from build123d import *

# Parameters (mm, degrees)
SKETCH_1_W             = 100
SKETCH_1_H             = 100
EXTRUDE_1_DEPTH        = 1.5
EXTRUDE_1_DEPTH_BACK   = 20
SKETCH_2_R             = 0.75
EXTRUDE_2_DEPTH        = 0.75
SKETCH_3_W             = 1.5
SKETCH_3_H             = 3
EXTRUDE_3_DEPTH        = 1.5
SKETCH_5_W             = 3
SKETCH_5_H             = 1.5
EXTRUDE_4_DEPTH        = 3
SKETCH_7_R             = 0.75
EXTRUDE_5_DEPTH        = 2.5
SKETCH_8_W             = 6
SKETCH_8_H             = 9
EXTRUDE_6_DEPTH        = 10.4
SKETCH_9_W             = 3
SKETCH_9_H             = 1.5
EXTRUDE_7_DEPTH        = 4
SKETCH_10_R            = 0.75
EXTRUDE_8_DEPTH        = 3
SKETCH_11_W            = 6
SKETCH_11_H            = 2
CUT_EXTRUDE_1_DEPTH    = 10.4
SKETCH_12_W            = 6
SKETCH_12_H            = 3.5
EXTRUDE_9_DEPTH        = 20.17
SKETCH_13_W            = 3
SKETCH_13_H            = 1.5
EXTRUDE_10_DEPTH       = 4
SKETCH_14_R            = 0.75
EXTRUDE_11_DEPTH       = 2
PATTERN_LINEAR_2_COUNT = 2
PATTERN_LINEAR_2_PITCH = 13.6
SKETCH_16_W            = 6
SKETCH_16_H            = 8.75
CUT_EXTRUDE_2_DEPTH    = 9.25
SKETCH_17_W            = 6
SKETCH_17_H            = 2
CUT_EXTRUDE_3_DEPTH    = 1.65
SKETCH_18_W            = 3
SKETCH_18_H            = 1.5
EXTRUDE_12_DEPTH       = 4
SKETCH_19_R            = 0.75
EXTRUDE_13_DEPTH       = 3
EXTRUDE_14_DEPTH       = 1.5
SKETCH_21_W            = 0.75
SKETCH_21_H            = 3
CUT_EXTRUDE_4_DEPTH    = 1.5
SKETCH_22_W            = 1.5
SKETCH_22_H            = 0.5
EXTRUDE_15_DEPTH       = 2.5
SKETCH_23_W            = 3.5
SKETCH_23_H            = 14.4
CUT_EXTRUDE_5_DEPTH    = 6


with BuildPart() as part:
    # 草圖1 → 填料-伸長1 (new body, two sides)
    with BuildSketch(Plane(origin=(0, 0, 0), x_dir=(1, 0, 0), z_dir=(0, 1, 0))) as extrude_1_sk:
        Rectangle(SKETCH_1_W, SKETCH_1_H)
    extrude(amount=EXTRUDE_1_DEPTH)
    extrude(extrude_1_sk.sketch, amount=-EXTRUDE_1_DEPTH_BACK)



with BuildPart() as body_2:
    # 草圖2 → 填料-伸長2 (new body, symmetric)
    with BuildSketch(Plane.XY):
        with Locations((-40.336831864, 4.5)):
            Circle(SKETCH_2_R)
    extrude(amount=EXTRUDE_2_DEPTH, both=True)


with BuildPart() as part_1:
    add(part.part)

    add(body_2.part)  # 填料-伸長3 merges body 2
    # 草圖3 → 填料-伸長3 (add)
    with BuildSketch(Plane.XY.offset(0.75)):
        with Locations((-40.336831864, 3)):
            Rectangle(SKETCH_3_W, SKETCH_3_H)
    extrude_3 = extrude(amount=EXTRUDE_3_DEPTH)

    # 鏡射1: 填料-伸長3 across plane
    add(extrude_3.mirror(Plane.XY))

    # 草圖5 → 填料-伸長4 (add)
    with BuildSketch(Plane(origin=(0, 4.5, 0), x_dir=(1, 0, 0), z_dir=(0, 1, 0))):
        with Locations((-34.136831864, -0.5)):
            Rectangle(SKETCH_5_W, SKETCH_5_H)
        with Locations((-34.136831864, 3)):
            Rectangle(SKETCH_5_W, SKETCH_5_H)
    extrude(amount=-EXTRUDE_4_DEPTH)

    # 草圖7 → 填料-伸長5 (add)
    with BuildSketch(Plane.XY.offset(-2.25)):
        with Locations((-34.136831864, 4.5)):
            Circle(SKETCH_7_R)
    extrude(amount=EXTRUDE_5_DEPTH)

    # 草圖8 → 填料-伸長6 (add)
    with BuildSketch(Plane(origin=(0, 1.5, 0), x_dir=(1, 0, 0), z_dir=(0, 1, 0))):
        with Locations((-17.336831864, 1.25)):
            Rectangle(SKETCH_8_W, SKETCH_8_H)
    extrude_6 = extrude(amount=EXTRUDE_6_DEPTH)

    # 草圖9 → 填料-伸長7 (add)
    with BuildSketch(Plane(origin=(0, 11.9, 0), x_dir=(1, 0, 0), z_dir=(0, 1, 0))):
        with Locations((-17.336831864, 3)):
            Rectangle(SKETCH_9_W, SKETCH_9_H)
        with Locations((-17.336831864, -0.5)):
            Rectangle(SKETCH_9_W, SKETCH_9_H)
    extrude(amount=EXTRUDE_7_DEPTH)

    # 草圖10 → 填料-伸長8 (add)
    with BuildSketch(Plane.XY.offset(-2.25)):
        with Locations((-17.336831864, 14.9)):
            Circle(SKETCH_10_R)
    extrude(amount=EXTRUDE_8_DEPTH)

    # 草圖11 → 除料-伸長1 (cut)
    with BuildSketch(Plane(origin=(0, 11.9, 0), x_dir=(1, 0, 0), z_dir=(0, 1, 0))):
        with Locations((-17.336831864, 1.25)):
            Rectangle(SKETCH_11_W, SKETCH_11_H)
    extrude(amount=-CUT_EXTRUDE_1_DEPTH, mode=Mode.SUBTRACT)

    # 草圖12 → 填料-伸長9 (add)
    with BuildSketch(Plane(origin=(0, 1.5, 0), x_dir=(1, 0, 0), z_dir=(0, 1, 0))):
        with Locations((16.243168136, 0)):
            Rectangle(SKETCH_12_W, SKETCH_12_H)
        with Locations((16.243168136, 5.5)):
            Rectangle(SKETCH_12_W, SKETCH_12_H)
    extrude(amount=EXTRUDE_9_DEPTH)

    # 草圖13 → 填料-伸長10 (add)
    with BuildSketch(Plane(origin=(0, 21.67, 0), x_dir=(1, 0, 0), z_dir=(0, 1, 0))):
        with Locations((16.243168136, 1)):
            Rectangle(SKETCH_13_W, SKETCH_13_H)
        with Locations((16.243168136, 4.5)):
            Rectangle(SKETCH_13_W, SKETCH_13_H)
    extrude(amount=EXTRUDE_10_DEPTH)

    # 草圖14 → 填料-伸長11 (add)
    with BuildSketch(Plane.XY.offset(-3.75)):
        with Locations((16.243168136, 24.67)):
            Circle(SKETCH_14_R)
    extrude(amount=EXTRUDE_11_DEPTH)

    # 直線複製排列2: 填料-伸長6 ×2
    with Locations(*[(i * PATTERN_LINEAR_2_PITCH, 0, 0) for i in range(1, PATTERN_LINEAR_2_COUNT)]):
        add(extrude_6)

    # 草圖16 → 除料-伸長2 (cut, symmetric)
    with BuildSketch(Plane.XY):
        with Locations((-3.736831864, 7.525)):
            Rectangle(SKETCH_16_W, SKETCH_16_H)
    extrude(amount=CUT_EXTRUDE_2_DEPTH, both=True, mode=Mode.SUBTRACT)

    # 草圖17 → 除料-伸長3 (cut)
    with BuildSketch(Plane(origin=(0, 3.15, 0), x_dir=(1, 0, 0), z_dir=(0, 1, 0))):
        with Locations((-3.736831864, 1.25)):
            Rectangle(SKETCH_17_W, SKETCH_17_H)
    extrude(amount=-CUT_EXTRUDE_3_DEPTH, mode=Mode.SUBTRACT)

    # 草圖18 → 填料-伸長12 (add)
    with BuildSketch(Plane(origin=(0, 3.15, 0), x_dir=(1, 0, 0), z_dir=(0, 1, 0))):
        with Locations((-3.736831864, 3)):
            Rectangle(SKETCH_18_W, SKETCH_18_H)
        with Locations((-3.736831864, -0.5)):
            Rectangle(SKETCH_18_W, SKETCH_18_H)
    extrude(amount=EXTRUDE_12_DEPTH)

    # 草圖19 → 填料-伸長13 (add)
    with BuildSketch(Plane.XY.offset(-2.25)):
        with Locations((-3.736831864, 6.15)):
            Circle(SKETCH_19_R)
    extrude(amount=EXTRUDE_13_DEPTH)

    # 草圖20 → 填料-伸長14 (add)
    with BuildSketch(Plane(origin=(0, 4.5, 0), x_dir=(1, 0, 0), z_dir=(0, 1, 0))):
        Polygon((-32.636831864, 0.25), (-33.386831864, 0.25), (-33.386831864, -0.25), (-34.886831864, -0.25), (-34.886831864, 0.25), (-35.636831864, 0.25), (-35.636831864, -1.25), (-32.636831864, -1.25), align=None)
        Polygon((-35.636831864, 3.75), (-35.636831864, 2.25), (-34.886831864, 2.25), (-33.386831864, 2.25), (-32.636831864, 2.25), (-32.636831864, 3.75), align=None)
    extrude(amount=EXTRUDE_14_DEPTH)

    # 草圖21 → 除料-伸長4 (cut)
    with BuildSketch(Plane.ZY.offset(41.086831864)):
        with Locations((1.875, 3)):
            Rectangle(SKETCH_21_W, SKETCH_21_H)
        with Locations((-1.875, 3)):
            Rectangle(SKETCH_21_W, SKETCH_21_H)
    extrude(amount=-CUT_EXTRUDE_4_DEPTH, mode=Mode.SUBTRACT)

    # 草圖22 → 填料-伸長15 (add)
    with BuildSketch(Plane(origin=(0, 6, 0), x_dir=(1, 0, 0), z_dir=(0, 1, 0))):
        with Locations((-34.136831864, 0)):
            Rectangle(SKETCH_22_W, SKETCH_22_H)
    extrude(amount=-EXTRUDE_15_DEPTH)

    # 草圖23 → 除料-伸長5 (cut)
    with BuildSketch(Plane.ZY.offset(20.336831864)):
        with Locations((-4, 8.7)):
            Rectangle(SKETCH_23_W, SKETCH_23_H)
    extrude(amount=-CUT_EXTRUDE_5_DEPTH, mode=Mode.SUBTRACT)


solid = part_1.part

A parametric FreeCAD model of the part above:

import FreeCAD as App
import Part
import Sketcher
from FreeCAD import Vector
Q = App.Units.Quantity


def add_polygon(sketch, points):
    """Adds a closed chain of lines whose ends are joined by coincident constraints."""
    first, n = sketch.GeometryCount, len(points)
    for a, b in zip(points, points[1:] + points[:1]):
        sketch.addGeometry(Part.LineSegment(App.Vector(*a, 0), App.Vector(*b, 0)), False)
    for i in range(n):
        sketch.addConstraint(Sketcher.Constraint("Coincident", first + i, 2, first + (i + 1) % n, 1))

doc = App.newDocument("Part")
body = doc.addObject("PartDesign::Body", "Body")

# Sketch on XZ plane
sketch1 = body.newObject("Sketcher::SketchObject", "Sketch")
sketch1.AttachmentSupport = (doc.getObject("XZ_Plane"), [""])
sketch1.MapMode = "FlatFace"
add_polygon(sketch1, [(-50, -50), (-50, 50), (50, 50), (50, -50)])  # lines 0-3
sketch1.addConstraint(Sketcher.Constraint("Vertical", 0))
sketch1.addConstraint(Sketcher.Constraint("Horizontal", 1))
sketch1.addConstraint(Sketcher.Constraint("Vertical", 2))
sketch1.addConstraint(Sketcher.Constraint("Horizontal", 3))
sketch1.addConstraint(Sketcher.Constraint("Symmetric", 0, 2, 2, 2, -1, 1))
sketch1.addConstraint(Sketcher.Constraint("Equal", 3, 0))
sketch1.addConstraint(Sketcher.Constraint("DistanceX", 1, 1, 1, 2, Q("100 mm")))
pad1 = body.newObject("PartDesign::Pad", "Pad")
pad1.Profile = sketch1
pad1.Type = "TwoLengths"
pad1.Length = 1.5
pad1.Length2 = 20
pad1.Reversed = True
body2 = doc.addObject("PartDesign::Body", "Body001")

# Sketch on XY plane
sketch2 = body2.newObject("Sketcher::SketchObject", "Sketch001")
sketch2.AttachmentSupport = (doc.getObject("XY_Plane001"), [""])
sketch2.MapMode = "FlatFace"
sketch2.addGeometry(Part.Circle(Vector(-40.3, 4.5, 0), Vector(0, 0, 1), 0.8), False)
sketch2.addConstraint(Sketcher.Constraint("Diameter", 0, Q("1.5 mm")))
sketch2.addConstraint(Sketcher.Constraint("DistanceY", -1, 1, 0, 3, Q("4.5 mm")))
sketch2.addConstraint(Sketcher.Constraint("DistanceX", 0, 3, -1, 1, Q("40.336832 mm")))
pad2 = body2.newObject("PartDesign::Pad", "Pad001")
pad2.Profile = sketch2
pad2.Length = 1.5
pad2.Midplane = True
body.AllowCompound = True
doc.recompute()

boolean = body.newObject("PartDesign::Boolean", "Boolean")
boolean.Type = "Fuse"
boolean.addObjects([body2])

# Sketch on XY plane
sketch3 = body.newObject("Sketcher::SketchObject", "Sketch002")
sketch3.AttachmentSupport = (doc.getObject("XY_Plane"), [""])
sketch3.MapMode = "FlatFace"
sketch3.AttachmentOffset = App.Placement(Vector(0, 0, 0.75), App.Rotation())
add_polygon(sketch3, [(-41.1, 4.5), (-41.1, 1.5), (-39.6, 1.5), (-39.6, 4.5)])  # lines 0-3
sketch3.addConstraint(Sketcher.Constraint("Vertical", 0))
sketch3.addConstraint(Sketcher.Constraint("Horizontal", 1))
sketch3.addConstraint(Sketcher.Constraint("Vertical", 2))
sketch3.addConstraint(Sketcher.Constraint("Horizontal", 3))
sketch3.addConstraint(Sketcher.Constraint("DistanceY", 0, 2, 0, 1, Q("3 mm")))
sketch3.addConstraint(Sketcher.Constraint("DistanceX", 1, 1, 1, 2, Q("1.5 mm")))
sketch3.addConstraint(Sketcher.Constraint("DistanceY", -1, 1, 0, 2, Q("1.5 mm")))
sketch3.addConstraint(Sketcher.Constraint("DistanceX", 0, 2, -1, 1, Q("41.086832 mm")))
pad3 = body.newObject("PartDesign::Pad", "Pad002")
pad3.Profile = sketch3
pad3.Length = 1.5
doc.recompute()

mirrored = body.newObject("PartDesign::Mirrored", "Mirrored")
mirrored.Originals = [pad3]
mirrored.MirrorPlane = (doc.getObject("XY_Plane"), [""])
body.Tip = mirrored

# Sketch on XZ plane
sketch4 = body.newObject("Sketcher::SketchObject", "Sketch003")
sketch4.AttachmentSupport = (doc.getObject("XZ_Plane"), [""])
sketch4.MapMode = "FlatFace"
sketch4.AttachmentOffset = App.Placement(Vector(0, 0, -4.5), App.Rotation())
add_polygon(sketch4, [(-35.6, -0.2), (-35.6, 1.2), (-32.6, 1.2), (-32.6, -0.2)])  # lines 0-3
add_polygon(sketch4, [(-35.6, -3.8), (-35.6, -2.2), (-32.6, -2.2), (-32.6, -3.8)])  # lines 4-7
sketch4.addConstraint(Sketcher.Constraint("Vertical", 0))
sketch4.addConstraint(Sketcher.Constraint("Horizontal", 1))
sketch4.addConstraint(Sketcher.Constraint("Vertical", 2))
sketch4.addConstraint(Sketcher.Constraint("Horizontal", 3))
sketch4.addConstraint(Sketcher.Constraint("Vertical", 4))
sketch4.addConstraint(Sketcher.Constraint("Horizontal", 5))
sketch4.addConstraint(Sketcher.Constraint("Vertical", 6))
sketch4.addConstraint(Sketcher.Constraint("Horizontal", 7))
sketch4.addConstraint(Sketcher.Constraint("Vertical", 3, 2, 4, 2))
sketch4.addConstraint(Sketcher.Constraint("Vertical", 2, 2, 5, 2))
sketch4.addConstraint(Sketcher.Constraint("Equal", 2, 4))
sketch4.addConstraint(Sketcher.Constraint("DistanceX", 1, 1, 1, 2, Q("3 mm")))
sketch4.addConstraint(Sketcher.Constraint("DistanceY", 0, 1, 0, 2, Q("1.5 mm")))
sketch4.addConstraint(Sketcher.Constraint("DistanceY", 4, 2, 3, 2, Q("2 mm")))
sketch4.addConstraint(Sketcher.Constraint("DistanceY", -1, 1, 0, 2, Q("1.25 mm")))
sketch4.addConstraint(Sketcher.Constraint("DistanceX", 0, 2, -1, 1, Q("35.636832 mm")))
pad4 = body.newObject("PartDesign::Pad", "Pad003")
pad4.Profile = sketch4
pad4.Length = 3

# Sketch on XY plane
sketch5 = body.newObject("Sketcher::SketchObject", "Sketch004")
sketch5.AttachmentSupport = (doc.getObject("XY_Plane"), [""])
sketch5.MapMode = "FlatFace"
sketch5.AttachmentOffset = App.Placement(Vector(0, 0, -2.25), App.Rotation())
sketch5.addGeometry(Part.Circle(Vector(-34.1, 4.5, 0), Vector(0, 0, 1), 0.8), False)
sketch5.addConstraint(Sketcher.Constraint("Diameter", 0, Q("1.5 mm")))
sketch5.addConstraint(Sketcher.Constraint("DistanceY", -1, 1, 0, 3, Q("4.5 mm")))
sketch5.addConstraint(Sketcher.Constraint("DistanceX", 0, 3, -1, 1, Q("34.136832 mm")))
pad5 = body.newObject("PartDesign::Pad", "Pad004")
pad5.Profile = sketch5
pad5.Length = 2.5

# Sketch on XZ plane
sketch6 = body.newObject("Sketcher::SketchObject", "Sketch005")
sketch6.AttachmentSupport = (doc.getObject("XZ_Plane"), [""])
sketch6.MapMode = "FlatFace"
sketch6.AttachmentOffset = App.Placement(Vector(0, 0, -1.5), App.Rotation())
add_polygon(sketch6, [(-20, -6), (-20, 3), (-14, 3), (-14, -6)])  # lines 0-3
sketch6.addConstraint(Sketcher.Constraint("Vertical", 0))
sketch6.addConstraint(Sketcher.Constraint("Horizontal", 1))
sketch6.addConstraint(Sketcher.Constraint("Vertical", 2))
sketch6.addConstraint(Sketcher.Constraint("Horizontal", 3))
sketch6.addConstraint(Sketcher.Constraint("DistanceX", 1, 1, 1, 2, Q("6 mm")))
sketch6.addConstraint(Sketcher.Constraint("DistanceY", 0, 1, 0, 2, Q("9 mm")))
sketch6.addConstraint(Sketcher.Constraint("DistanceY", -1, 1, 0, 2, Q("3.25 mm")))
sketch6.addConstraint(Sketcher.Constraint("DistanceX", 0, 2, -1, 1, Q("20.336832 mm")))
pad6 = body.newObject("PartDesign::Pad", "Pad005")
pad6.Profile = sketch6
pad6.Length = 10.4
pad6.Reversed = True

# Sketch on XZ plane
sketch7 = body.newObject("Sketcher::SketchObject", "Sketch006")
sketch7.AttachmentSupport = (doc.getObject("XZ_Plane"), [""])
sketch7.MapMode = "FlatFace"
sketch7.AttachmentOffset = App.Placement(Vector(0, 0, -11.9), App.Rotation())
add_polygon(sketch7, [(-18.8, -3.8), (-18.8, -2.2), (-15.8, -2.2), (-15.8, -3.8)])  # lines 0-3
add_polygon(sketch7, [(-18.8, -0.2), (-18.8, 1.2), (-15.8, 1.2), (-15.8, -0.2)])  # lines 4-7
sketch7.addConstraint(Sketcher.Constraint("Vertical", 0))
sketch7.addConstraint(Sketcher.Constraint("Horizontal", 1))
sketch7.addConstraint(Sketcher.Constraint("Vertical", 2))
sketch7.addConstraint(Sketcher.Constraint("Horizontal", 3))
sketch7.addConstraint(Sketcher.Constraint("Vertical", 4))
sketch7.addConstraint(Sketcher.Constraint("Horizontal", 5))
sketch7.addConstraint(Sketcher.Constraint("Vertical", 6))
sketch7.addConstraint(Sketcher.Constraint("Horizontal", 7))
sketch7.addConstraint(Sketcher.Constraint("Vertical", 3, 2, 4, 2))
sketch7.addConstraint(Sketcher.Constraint("Vertical", 2, 2, 5, 2))
sketch7.addConstraint(Sketcher.Constraint("Equal", 2, 4))
sketch7.addConstraint(Sketcher.Constraint("DistanceX", 1, 1, 1, 2, Q("3 mm")))
sketch7.addConstraint(Sketcher.Constraint("DistanceY", 0, 1, 0, 2, Q("1.5 mm")))
sketch7.addConstraint(Sketcher.Constraint("DistanceY", 3, 2, 4, 2, Q("5 mm")))
sketch7.addConstraint(Sketcher.Constraint("DistanceY", 0, 2, -1, 1, Q("2.25 mm")))
sketch7.addConstraint(Sketcher.Constraint("DistanceX", 0, 2, -1, 1, Q("18.836832 mm")))
pad7 = body.newObject("PartDesign::Pad", "Pad006")
pad7.Profile = sketch7
pad7.Length = 4
pad7.Reversed = True

# Sketch on XY plane
sketch8 = body.newObject("Sketcher::SketchObject", "Sketch007")
sketch8.AttachmentSupport = (doc.getObject("XY_Plane"), [""])
sketch8.MapMode = "FlatFace"
sketch8.AttachmentOffset = App.Placement(Vector(0, 0, -2.25), App.Rotation())
sketch8.addGeometry(Part.Circle(Vector(-17.3, 14.9, 0), Vector(0, 0, 1), 0.8), False)
sketch8.addConstraint(Sketcher.Constraint("Diameter", 0, Q("1.5 mm")))
sketch8.addConstraint(Sketcher.Constraint("DistanceY", -1, 1, 0, 3, Q("14.9 mm")))
sketch8.addConstraint(Sketcher.Constraint("DistanceX", 0, 3, -1, 1, Q("17.336832 mm")))
pad8 = body.newObject("PartDesign::Pad", "Pad007")
pad8.Profile = sketch8
pad8.Length = 3

# Sketch on XZ plane
sketch9 = body.newObject("Sketcher::SketchObject", "Sketch008")
sketch9.AttachmentSupport = (doc.getObject("XZ_Plane"), [""])
sketch9.MapMode = "FlatFace"
sketch9.AttachmentOffset = App.Placement(Vector(0, 0, -11.9), App.Rotation())
add_polygon(sketch9, [(-20.3, -2.2), (-20.3, -0.2), (-14.3, -0.2), (-14.3, -2.2)])  # lines 0-3
sketch9.addConstraint(Sketcher.Constraint("Vertical", 0))
sketch9.addConstraint(Sketcher.Constraint("Horizontal", 1))
sketch9.addConstraint(Sketcher.Constraint("Vertical", 2))
sketch9.addConstraint(Sketcher.Constraint("Horizontal", 3))
sketch9.addConstraint(Sketcher.Constraint("DistanceX", 1, 1, 1, 2, Q("6 mm")))
sketch9.addConstraint(Sketcher.Constraint("DistanceY", 0, 1, 0, 2, Q("2 mm")))
sketch9.addConstraint(Sketcher.Constraint("DistanceY", 0, 2, -1, 1, Q("0.25 mm")))
sketch9.addConstraint(Sketcher.Constraint("DistanceX", 0, 2, -1, 1, Q("20.336832 mm")))
pocket1 = body.newObject("PartDesign::Pocket", "Pocket")
pocket1.Profile = sketch9
pocket1.Length = 10.4
pocket1.Reversed = True

# Sketch on XZ plane
sketch10 = body.newObject("Sketcher::SketchObject", "Sketch009")
sketch10.AttachmentSupport = (doc.getObject("XZ_Plane"), [""])
sketch10.MapMode = "FlatFace"
sketch10.AttachmentOffset = App.Placement(Vector(0, 0, -1.5), App.Rotation())
add_polygon(sketch10, [(13.2, -1.8), (13.2, 1.8), (19.2, 1.8), (19.2, -1.8)])  # lines 0-3
add_polygon(sketch10, [(13.2, -7.2), (13.2, -3.8), (19.2, -3.8), (19.2, -7.2)])  # lines 4-7
sketch10.addConstraint(Sketcher.Constraint("Vertical", 0))
sketch10.addConstraint(Sketcher.Constraint("Horizontal", 1))
sketch10.addConstraint(Sketcher.Constraint("Vertical", 2))
sketch10.addConstraint(Sketcher.Constraint("Horizontal", 3))
sketch10.addConstraint(Sketcher.Constraint("Vertical", 4))
sketch10.addConstraint(Sketcher.Constraint("Horizontal", 5))
sketch10.addConstraint(Sketcher.Constraint("Vertical", 6))
sketch10.addConstraint(Sketcher.Constraint("Horizontal", 7))
sketch10.addConstraint(Sketcher.Constraint("Vertical", 3, 2, 4, 2))
sketch10.addConstraint(Sketcher.Constraint("Vertical", 2, 2, 5, 2))
sketch10.addConstraint(Sketcher.Constraint("Equal", 2, 4))
sketch10.addConstraint(Sketcher.Constraint("DistanceX", 1, 1, 1, 2, Q("6 mm")))
sketch10.addConstraint(Sketcher.Constraint("DistanceY", 0, 1, 0, 2, Q("3.5 mm")))
sketch10.addConstraint(Sketcher.Constraint("DistanceY", 4, 2, 3, 2, Q("2 mm")))
sketch10.addConstraint(Sketcher.Constraint("DistanceY", -1, 1, 0, 2, Q("1.75 mm")))
sketch10.addConstraint(Sketcher.Constraint("DistanceX", -1, 1, 0, 2, Q("13.243168 mm")))
pad9 = body.newObject("PartDesign::Pad", "Pad008")
pad9.Profile = sketch10
pad9.Length = 20.17
pad9.Reversed = True

# Sketch on XZ plane
sketch11 = body.newObject("Sketcher::SketchObject", "Sketch010")
sketch11.AttachmentSupport = (doc.getObject("XZ_Plane"), [""])
sketch11.MapMode = "FlatFace"
sketch11.AttachmentOffset = App.Placement(Vector(0, 0, -21.67), App.Rotation())
add_polygon(sketch11, [(14.7, -1.8), (14.7, -0.2), (17.7, -0.2), (17.7, -1.8)])  # lines 0-3
add_polygon(sketch11, [(14.7, -5.2), (14.7, -3.8), (17.7, -3.8), (17.7, -5.2)])  # lines 4-7
sketch11.addConstraint(Sketcher.Constraint("Vertical", 0))
sketch11.addConstraint(Sketcher.Constraint("Horizontal", 1))
sketch11.addConstraint(Sketcher.Constraint("Vertical", 2))
sketch11.addConstraint(Sketcher.Constraint("Horizontal", 3))
sketch11.addConstraint(Sketcher.Constraint("Vertical", 4))
sketch11.addConstraint(Sketcher.Constraint("Horizontal", 5))
sketch11.addConstraint(Sketcher.Constraint("Vertical", 6))
sketch11.addConstraint(Sketcher.Constraint("Horizontal", 7))
sketch11.addConstraint(Sketcher.Constraint("Vertical", 3, 2, 4, 2))
sketch11.addConstraint(Sketcher.Constraint("Vertical", 2, 2, 5, 2))
sketch11.addConstraint(Sketcher.Constraint("Equal", 2, 4))
sketch11.addConstraint(Sketcher.Constraint("DistanceX", 1, 1, 1, 2, Q("3 mm")))
sketch11.addConstraint(Sketcher.Constraint("DistanceY", 0, 1, 0, 2, Q("1.5 mm")))
sketch11.addConstraint(Sketcher.Constraint("DistanceY", 4, 2, 3, 2, Q("2 mm")))
sketch11.addConstraint(Sketcher.Constraint("DistanceY", 0, 2, -1, 1, Q("0.25 mm")))
sketch11.addConstraint(Sketcher.Constraint("DistanceX", -1, 1, 0, 2, Q("14.743168 mm")))
pad10 = body.newObject("PartDesign::Pad", "Pad009")
pad10.Profile = sketch11
pad10.Length = 4
pad10.Reversed = True

# Sketch on XY plane
sketch12 = body.newObject("Sketcher::SketchObject", "Sketch011")
sketch12.AttachmentSupport = (doc.getObject("XY_Plane"), [""])
sketch12.MapMode = "FlatFace"
sketch12.AttachmentOffset = App.Placement(Vector(0, 0, -3.75), App.Rotation())
sketch12.addGeometry(Part.Circle(Vector(16.2, 24.7, 0), Vector(0, 0, 1), 0.8), False)
sketch12.addConstraint(Sketcher.Constraint("Diameter", 0, Q("1.5 mm")))
sketch12.addConstraint(Sketcher.Constraint("DistanceY", -1, 1, 0, 3, Q("24.67 mm")))
sketch12.addConstraint(Sketcher.Constraint("DistanceX", -1, 1, 0, 3, Q("16.243168 mm")))
pad11 = body.newObject("PartDesign::Pad", "Pad010")
pad11.Profile = sketch12
pad11.Length = 2
doc.recompute()

linearpattern = body.newObject("PartDesign::LinearPattern", "LinearPattern")
linearpattern.Originals = [pad6]
linearpattern.Direction = (doc.getObject("X_Axis"), [""])
linearpattern.Mode = "offset"
linearpattern.Offset = 13.6
linearpattern.Occurrences = 2
body.Tip = linearpattern

# Sketch on XY plane
sketch13 = body.newObject("Sketcher::SketchObject", "Sketch012")
sketch13.AttachmentSupport = (doc.getObject("XY_Plane"), [""])
sketch13.MapMode = "FlatFace"
add_polygon(sketch13, [(-7, 12), (-7, 3), (-1, 3), (-1, 12)])  # lines 0-3
sketch13.addConstraint(Sketcher.Constraint("Vertical", 0))
sketch13.addConstraint(Sketcher.Constraint("Horizontal", 1))
sketch13.addConstraint(Sketcher.Constraint("Vertical", 2))
sketch13.addConstraint(Sketcher.Constraint("Horizontal", 3))
sketch13.addConstraint(Sketcher.Constraint("DistanceX", 1, 1, 1, 2, Q("6 mm")))
sketch13.addConstraint(Sketcher.Constraint("DistanceY", 0, 2, 0, 1, Q("8.75 mm")))
sketch13.addConstraint(Sketcher.Constraint("DistanceY", -1, 1, 2, 2, Q("11.9 mm")))
sketch13.addConstraint(Sketcher.Constraint("DistanceX", 0, 2, -1, 1, Q("6.736832 mm")))
pocket2 = body.newObject("PartDesign::Pocket", "Pocket001")
pocket2.Profile = sketch13
pocket2.Length = 18.5
pocket2.Midplane = True

# Sketch on XZ plane
sketch14 = body.newObject("Sketcher::SketchObject", "Sketch013")
sketch14.AttachmentSupport = (doc.getObject("XZ_Plane"), [""])
sketch14.MapMode = "FlatFace"
sketch14.AttachmentOffset = App.Placement(Vector(0, 0, -3.15), App.Rotation())
add_polygon(sketch14, [(-6.7, -2.2), (-6.7, -0.2), (-0.7, -0.2), (-0.7, -2.2)])  # lines 0-3
sketch14.addConstraint(Sketcher.Constraint("Vertical", 0))
sketch14.addConstraint(Sketcher.Constraint("Horizontal", 1))
sketch14.addConstraint(Sketcher.Constraint("Vertical", 2))
sketch14.addConstraint(Sketcher.Constraint("Horizontal", 3))
sketch14.addConstraint(Sketcher.Constraint("DistanceX", 1, 1, 1, 2, Q("6 mm")))
sketch14.addConstraint(Sketcher.Constraint("DistanceY", 0, 1, 0, 2, Q("2 mm")))
sketch14.addConstraint(Sketcher.Constraint("DistanceY", 0, 2, -1, 1, Q("0.25 mm")))
sketch14.addConstraint(Sketcher.Constraint("DistanceX", 0, 2, -1, 1, Q("6.736832 mm")))
pocket3 = body.newObject("PartDesign::Pocket", "Pocket002")
pocket3.Profile = sketch14
pocket3.Length = 1.65
pocket3.Reversed = True

# Sketch on XZ plane
sketch15 = body.newObject("Sketcher::SketchObject", "Sketch014")
sketch15.AttachmentSupport = (doc.getObject("XZ_Plane"), [""])
sketch15.MapMode = "FlatFace"
sketch15.AttachmentOffset = App.Placement(Vector(0, 0, -3.15), App.Rotation())
add_polygon(sketch15, [(-5.2, -3.8), (-5.2, -2.2), (-2.2, -2.2), (-2.2, -3.8)])  # lines 0-3
add_polygon(sketch15, [(-5.2, -0.2), (-5.2, 1.2), (-2.2, 1.2), (-2.2, -0.2)])  # lines 4-7
sketch15.addConstraint(Sketcher.Constraint("Vertical", 0))
sketch15.addConstraint(Sketcher.Constraint("Horizontal", 1))
sketch15.addConstraint(Sketcher.Constraint("Vertical", 2))
sketch15.addConstraint(Sketcher.Constraint("Horizontal", 3))
sketch15.addConstraint(Sketcher.Constraint("Vertical", 4))
sketch15.addConstraint(Sketcher.Constraint("Horizontal", 5))
sketch15.addConstraint(Sketcher.Constraint("Vertical", 6))
sketch15.addConstraint(Sketcher.Constraint("Horizontal", 7))
sketch15.addConstraint(Sketcher.Constraint("Vertical", 3, 2, 4, 2))
sketch15.addConstraint(Sketcher.Constraint("Vertical", 2, 2, 5, 2))
sketch15.addConstraint(Sketcher.Constraint("Equal", 2, 4))
sketch15.addConstraint(Sketcher.Constraint("DistanceX", 1, 1, 1, 2, Q("3 mm")))
sketch15.addConstraint(Sketcher.Constraint("DistanceY", 0, 1, 0, 2, Q("1.5 mm")))
sketch15.addConstraint(Sketcher.Constraint("DistanceY", 3, 2, 4, 2, Q("5 mm")))
sketch15.addConstraint(Sketcher.Constraint("DistanceY", 0, 2, -1, 1, Q("2.25 mm")))
sketch15.addConstraint(Sketcher.Constraint("DistanceX", 0, 2, -1, 1, Q("5.236832 mm")))
pad12 = body.newObject("PartDesign::Pad", "Pad011")
pad12.Profile = sketch15
pad12.Length = 4
pad12.Reversed = True

# Sketch on XY plane
sketch16 = body.newObject("Sketcher::SketchObject", "Sketch015")
sketch16.AttachmentSupport = (doc.getObject("XY_Plane"), [""])
sketch16.MapMode = "FlatFace"
sketch16.AttachmentOffset = App.Placement(Vector(0, 0, -2.25), App.Rotation())
sketch16.addGeometry(Part.Circle(Vector(-3.7, 6.2, 0), Vector(0, 0, 1), 0.8), False)
sketch16.addConstraint(Sketcher.Constraint("Diameter", 0, Q("1.5 mm")))
sketch16.addConstraint(Sketcher.Constraint("DistanceY", -1, 1, 0, 3, Q("6.15 mm")))
sketch16.addConstraint(Sketcher.Constraint("DistanceX", 0, 3, -1, 1, Q("3.736832 mm")))
pad13 = body.newObject("PartDesign::Pad", "Pad012")
pad13.Profile = sketch16
pad13.Length = 3

# Sketch on XZ plane
sketch17 = body.newObject("Sketcher::SketchObject", "Sketch016")
sketch17.AttachmentSupport = (doc.getObject("XZ_Plane"), [""])
sketch17.MapMode = "FlatFace"
sketch17.AttachmentOffset = App.Placement(Vector(0, 0, -4.5), App.Rotation())
add_polygon(sketch17, [(-32.6, -0.2), (-33.4, -0.2), (-33.4, 0.2), (-34.9, 0.2), (-34.9, -0.2), (-35.6, -0.2), (-35.6, 1.2), (-32.6, 1.2)])  # lines 0-7
add_polygon(sketch17, [(-35.6, -3.8), (-35.6, -2.2), (-32.6, -2.2), (-32.6, -3.8)])  # lines 8-11
sketch17.addConstraint(Sketcher.Constraint("Horizontal", 0))
sketch17.addConstraint(Sketcher.Constraint("Vertical", 1))
sketch17.addConstraint(Sketcher.Constraint("Horizontal", 2))
sketch17.addConstraint(Sketcher.Constraint("Vertical", 3))
sketch17.addConstraint(Sketcher.Constraint("Horizontal", 4))
sketch17.addConstraint(Sketcher.Constraint("Vertical", 5))
sketch17.addConstraint(Sketcher.Constraint("Horizontal", 6))
sketch17.addConstraint(Sketcher.Constraint("Vertical", 7))
sketch17.addConstraint(Sketcher.Constraint("Vertical", 8))
sketch17.addConstraint(Sketcher.Constraint("Horizontal", 9))
sketch17.addConstraint(Sketcher.Constraint("Vertical", 10))
sketch17.addConstraint(Sketcher.Constraint("Horizontal", 11))
sketch17.addConstraint(Sketcher.Constraint("Horizontal", 0, 2, 3, 2))
sketch17.addConstraint(Sketcher.Constraint("Vertical", 5, 2, 8, 2))
sketch17.addConstraint(Sketcher.Constraint("Vertical", 7, 2, 9, 2))
sketch17.addConstraint(Sketcher.Constraint("Equal", 0, 4))
sketch17.addConstraint(Sketcher.Constraint("Equal", 2, 5))
sketch17.addConstraint(Sketcher.Constraint("Equal", 7, 8))
sketch17.addConstraint(Sketcher.Constraint("DistanceX", 6, 1, 6, 2, Q("3 mm")))
sketch17.addConstraint(Sketcher.Constraint("DistanceX", 2, 2, 2, 1, Q("1.5 mm")))
sketch17.addConstraint(Sketcher.Constraint("DistanceY", 1, 1, 1, 2, Q("0.5 mm")))
sketch17.addConstraint(Sketcher.Constraint("DistanceY", 8, 2, 4, 2, Q("2 mm")))
sketch17.addConstraint(Sketcher.Constraint("DistanceY", 0, 2, -1, 1, Q("0.25 mm")))
sketch17.addConstraint(Sketcher.Constraint("DistanceX", 0, 2, -1, 1, Q("33.386832 mm")))
pad14 = body.newObject("PartDesign::Pad", "Pad013")
pad14.Profile = sketch17
pad14.Length = 1.5
pad14.Reversed = True

# Sketch on YZ plane
sketch18 = body.newObject("Sketcher::SketchObject", "Sketch017")
sketch18.AttachmentSupport = (doc.getObject("YZ_Plane"), [""])
sketch18.MapMode = "FlatFace"
sketch18.AttachmentOffset = App.Placement(Vector(0, 0, -41.086832), App.Rotation())
add_polygon(sketch18, [(4.5, 1.5), (1.5, 1.5), (1.5, 2.2), (4.5, 2.2)])  # lines 0-3
add_polygon(sketch18, [(4.5, -2.2), (1.5, -2.2), (1.5, -1.5), (4.5, -1.5)])  # lines 4-7
sketch18.addConstraint(Sketcher.Constraint("Horizontal", 0))
sketch18.addConstraint(Sketcher.Constraint("Vertical", 1))
sketch18.addConstraint(Sketcher.Constraint("Horizontal", 2))
sketch18.addConstraint(Sketcher.Constraint("Vertical", 3))
sketch18.addConstraint(Sketcher.Constraint("Horizontal", 4))
sketch18.addConstraint(Sketcher.Constraint("Vertical", 5))
sketch18.addConstraint(Sketcher.Constraint("Horizontal", 6))
sketch18.addConstraint(Sketcher.Constraint("Vertical", 7))
sketch18.addConstraint(Sketcher.Constraint("Symmetric", 1, 2, 4, 2, -1))
sketch18.addConstraint(Sketcher.Constraint("Symmetric", 3, 2, 6, 2, -1))
sketch18.addConstraint(Sketcher.Constraint("DistanceX", 0, 2, 0, 1, Q("3 mm")))
sketch18.addConstraint(Sketcher.Constraint("DistanceY", 5, 2, 0, 2, Q("3 mm")))
sketch18.addConstraint(Sketcher.Constraint("DistanceY", 1, 1, 1, 2, Q("0.75 mm")))
sketch18.addConstraint(Sketcher.Constraint("DistanceX", -1, 1, 0, 2, Q("1.5 mm")))
pocket4 = body.newObject("PartDesign::Pocket", "Pocket003")
pocket4.Profile = sketch18
pocket4.Length = 1.5
pocket4.Reversed = True

# Sketch on XZ plane
sketch19 = body.newObject("Sketcher::SketchObject", "Sketch018")
sketch19.AttachmentSupport = (doc.getObject("XZ_Plane"), [""])
sketch19.MapMode = "FlatFace"
sketch19.AttachmentOffset = App.Placement(Vector(0, 0, -6), App.Rotation())
add_polygon(sketch19, [(-34.9, -0.2), (-34.9, 0.2), (-33.4, 0.2), (-33.4, -0.2)])  # lines 0-3
sketch19.addConstraint(Sketcher.Constraint("Vertical", 0))
sketch19.addConstraint(Sketcher.Constraint("Horizontal", 1))
sketch19.addConstraint(Sketcher.Constraint("Vertical", 2))
sketch19.addConstraint(Sketcher.Constraint("Horizontal", 3))
sketch19.addConstraint(Sketcher.Constraint("DistanceX", 1, 1, 1, 2, Q("1.5 mm")))
sketch19.addConstraint(Sketcher.Constraint("DistanceY", 0, 1, 0, 2, Q("0.5 mm")))
sketch19.addConstraint(Sketcher.Constraint("DistanceY", -1, 1, 0, 2, Q("0.25 mm")))
sketch19.addConstraint(Sketcher.Constraint("DistanceX", 0, 2, -1, 1, Q("34.886832 mm")))
pad15 = body.newObject("PartDesign::Pad", "Pad014")
pad15.Profile = sketch19
pad15.Length = 2.5

# Sketch on YZ plane
sketch20 = body.newObject("Sketcher::SketchObject", "Sketch019")
sketch20.AttachmentSupport = (doc.getObject("YZ_Plane"), [""])
sketch20.MapMode = "FlatFace"
sketch20.AttachmentOffset = App.Placement(Vector(0, 0, -20.336832), App.Rotation())
add_polygon(sketch20, [(15.9, -5.8), (1.5, -5.8), (1.5, -2.2), (15.9, -2.2)])  # lines 0-3
sketch20.addConstraint(Sketcher.Constraint("Horizontal", 0))
sketch20.addConstraint(Sketcher.Constraint("Vertical", 1))
sketch20.addConstraint(Sketcher.Constraint("Horizontal", 2))
sketch20.addConstraint(Sketcher.Constraint("Vertical", 3))
sketch20.addConstraint(Sketcher.Constraint("DistanceX", 0, 2, 0, 1, Q("14.4 mm")))
sketch20.addConstraint(Sketcher.Constraint("DistanceY", 1, 1, 1, 2, Q("3.5 mm")))
sketch20.addConstraint(Sketcher.Constraint("DistanceX", -1, 1, 0, 2, Q("1.5 mm")))
sketch20.addConstraint(Sketcher.Constraint("DistanceY", 0, 2, -1, 1, Q("5.75 mm")))
pocket5 = body.newObject("PartDesign::Pocket", "Pocket004")
pocket5.Profile = sketch20
pocket5.Length = 6
pocket5.Reversed = True

doc.recompute()
